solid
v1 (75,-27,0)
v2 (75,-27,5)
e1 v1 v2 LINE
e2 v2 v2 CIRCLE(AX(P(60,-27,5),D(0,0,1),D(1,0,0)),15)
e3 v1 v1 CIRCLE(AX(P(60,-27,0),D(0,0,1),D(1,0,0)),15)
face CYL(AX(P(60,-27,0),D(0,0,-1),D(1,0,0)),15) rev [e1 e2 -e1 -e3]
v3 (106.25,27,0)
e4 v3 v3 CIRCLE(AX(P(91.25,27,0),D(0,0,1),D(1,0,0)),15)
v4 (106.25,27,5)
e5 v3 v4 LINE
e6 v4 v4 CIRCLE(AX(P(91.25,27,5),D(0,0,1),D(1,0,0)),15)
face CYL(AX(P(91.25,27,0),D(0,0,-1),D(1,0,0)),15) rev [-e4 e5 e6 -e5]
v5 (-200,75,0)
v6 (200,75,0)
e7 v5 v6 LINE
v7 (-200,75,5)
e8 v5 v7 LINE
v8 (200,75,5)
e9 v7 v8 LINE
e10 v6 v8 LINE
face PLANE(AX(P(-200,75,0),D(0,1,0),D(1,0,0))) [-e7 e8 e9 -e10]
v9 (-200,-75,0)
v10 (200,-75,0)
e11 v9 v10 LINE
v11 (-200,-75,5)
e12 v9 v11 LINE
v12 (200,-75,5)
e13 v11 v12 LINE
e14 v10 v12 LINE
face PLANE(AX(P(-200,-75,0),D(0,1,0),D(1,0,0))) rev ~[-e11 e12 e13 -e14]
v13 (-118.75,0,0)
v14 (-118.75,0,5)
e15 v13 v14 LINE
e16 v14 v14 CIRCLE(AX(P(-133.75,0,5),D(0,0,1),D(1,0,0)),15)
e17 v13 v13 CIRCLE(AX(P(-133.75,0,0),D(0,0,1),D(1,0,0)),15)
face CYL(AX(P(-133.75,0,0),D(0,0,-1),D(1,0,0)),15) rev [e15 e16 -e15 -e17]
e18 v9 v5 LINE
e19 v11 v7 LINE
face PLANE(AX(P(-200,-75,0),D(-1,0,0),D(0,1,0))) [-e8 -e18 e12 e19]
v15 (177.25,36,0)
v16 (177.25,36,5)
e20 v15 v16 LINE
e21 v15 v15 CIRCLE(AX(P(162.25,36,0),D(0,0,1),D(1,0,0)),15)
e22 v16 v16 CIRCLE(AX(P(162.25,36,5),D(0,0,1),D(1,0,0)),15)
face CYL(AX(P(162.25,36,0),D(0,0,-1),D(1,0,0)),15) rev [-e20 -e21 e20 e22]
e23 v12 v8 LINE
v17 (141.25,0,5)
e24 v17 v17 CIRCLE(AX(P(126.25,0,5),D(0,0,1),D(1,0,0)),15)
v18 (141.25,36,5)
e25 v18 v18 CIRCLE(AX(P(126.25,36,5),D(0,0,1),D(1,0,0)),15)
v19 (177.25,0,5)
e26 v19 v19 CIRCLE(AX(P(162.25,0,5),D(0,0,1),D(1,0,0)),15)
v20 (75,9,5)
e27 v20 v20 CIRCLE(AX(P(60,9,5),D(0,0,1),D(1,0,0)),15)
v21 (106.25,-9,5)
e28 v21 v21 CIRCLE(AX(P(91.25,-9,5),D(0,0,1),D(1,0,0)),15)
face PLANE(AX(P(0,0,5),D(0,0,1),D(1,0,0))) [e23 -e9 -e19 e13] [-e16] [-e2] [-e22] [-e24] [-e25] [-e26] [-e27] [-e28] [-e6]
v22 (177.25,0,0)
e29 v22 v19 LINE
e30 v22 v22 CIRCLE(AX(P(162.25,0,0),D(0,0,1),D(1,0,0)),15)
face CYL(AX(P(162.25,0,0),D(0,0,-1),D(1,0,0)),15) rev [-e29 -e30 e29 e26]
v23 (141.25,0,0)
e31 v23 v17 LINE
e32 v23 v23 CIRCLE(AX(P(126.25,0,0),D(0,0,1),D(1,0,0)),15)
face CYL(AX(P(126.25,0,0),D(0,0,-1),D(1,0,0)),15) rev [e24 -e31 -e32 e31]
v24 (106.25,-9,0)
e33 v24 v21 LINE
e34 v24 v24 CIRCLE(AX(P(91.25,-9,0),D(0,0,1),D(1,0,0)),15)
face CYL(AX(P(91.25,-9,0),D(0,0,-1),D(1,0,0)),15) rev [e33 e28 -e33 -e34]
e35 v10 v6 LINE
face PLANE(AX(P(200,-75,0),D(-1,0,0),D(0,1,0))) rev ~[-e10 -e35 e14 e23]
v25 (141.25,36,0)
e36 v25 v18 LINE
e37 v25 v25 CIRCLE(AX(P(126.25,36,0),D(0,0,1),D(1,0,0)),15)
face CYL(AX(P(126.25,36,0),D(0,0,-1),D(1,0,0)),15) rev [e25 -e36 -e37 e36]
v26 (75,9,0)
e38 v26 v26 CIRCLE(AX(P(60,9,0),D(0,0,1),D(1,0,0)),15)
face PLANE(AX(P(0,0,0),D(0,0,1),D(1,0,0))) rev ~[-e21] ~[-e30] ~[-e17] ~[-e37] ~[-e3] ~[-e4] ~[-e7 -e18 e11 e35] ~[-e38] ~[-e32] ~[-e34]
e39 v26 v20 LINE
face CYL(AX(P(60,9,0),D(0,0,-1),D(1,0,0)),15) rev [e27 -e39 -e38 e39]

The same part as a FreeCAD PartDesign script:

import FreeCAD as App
import Part
import Sketcher
from FreeCAD import Vector
Q = App.Units.Quantity


def add_polygon(sketch, points):
    """Adds a closed chain of lines whose ends are joined by coincident constraints."""
    first, n = sketch.GeometryCount, len(points)
    for a, b in zip(points, points[1:] + points[:1]):
        sketch.addGeometry(Part.LineSegment(App.Vector(*a, 0), App.Vector(*b, 0)), False)
    for i in range(n):
        sketch.addConstraint(Sketcher.Constraint("Coincident", first + i, 2, first + (i + 1) % n, 1))

doc = App.newDocument("Part")
body = doc.addObject("PartDesign::Body", "Body")

sketch1 = doc.addObject("Sketcher::SketchObject", "Sketch")
body.addObject(sketch1)
sketch1.AttachmentSupport = (doc.XY_Plane, [""])
sketch1.MapMode = "FlatFace"
add_polygon(sketch1, [(-200, 75), (-200, -75), (200, -75), (200, 75)])
sketch1.addGeometry(Part.Circle(Vector(-134, 0, 0), Vector(0, 0, 1), 15), False)
sketch1.addGeometry(Part.Circle(Vector(60, -27, 0), Vector(0, 0, 1), 15), False)
sketch1.addGeometry(Part.Circle(Vector(91, -9, 0), Vector(0, 0, 1), 15), False)
sketch1.addGeometry(Part.Circle(Vector(126, 0, 0), Vector(0, 0, 1), 15), False)
sketch1.addGeometry(Part.Circle(Vector(162, 0, 0), Vector(0, 0, 1), 15), False)
sketch1.addGeometry(Part.Circle(Vector(60, 9, 0), Vector(0, 0, 1), 15), False)
sketch1.addGeometry(Part.Circle(Vector(91, 27, 0), Vector(0, 0, 1), 15), False)
sketch1.addGeometry(Part.Circle(Vector(126, 36, 0), Vector(0, 0, 1), 15), False)
sketch1.addGeometry(Part.Circle(Vector(162, 36, 0), Vector(0, 0, 1), 15), False)
sketch1.addConstraint(Sketcher.Constraint("Vertical", 0))
sketch1.addConstraint(Sketcher.Constraint("Horizontal", 1))
sketch1.addConstraint(Sketcher.Constraint("Vertical", 2))
sketch1.addConstraint(Sketcher.Constraint("Horizontal", 3))
sketch1.addConstraint(Sketcher.Constraint("Equal", 4, 5))
sketch1.addConstraint(Sketcher.Constraint("Equal", 5, 6))
sketch1.addConstraint(Sketcher.Constraint("Equal", 6, 7))
sketch1.addConstraint(Sketcher.Constraint("Equal", 7, 8))
sketch1.addConstraint(Sketcher.Constraint("Equal", 8, 9))
sketch1.addConstraint(Sketcher.Constraint("Equal", 9, 10))
sketch1.addConstraint(Sketcher.Constraint("Equal", 10, 11))
sketch1.addConstraint(Sketcher.Constraint("Equal", 11, 12))
sketch1.addConstraint(Sketcher.Constraint("Symmetric", 0, 2, 2, 2, -1, 1))
sketch1.addConstraint(Sketcher.Constraint("PointOnObject", 4, 3, -1))
sketch1.addConstraint(Sketcher.Constraint("PointOnObject", 7, 3, -1))
sketch1.addConstraint(Sketcher.Constraint("PointOnObject", 8, 3, -1))
sketch1.addConstraint(Sketcher.Constraint("Horizontal", 11, 3, 12, 3))
sketch1.addConstraint(Sketcher.Constraint("Vertical", 5, 3, 9, 3))
sketch1.addConstraint(Sketcher.Constraint("Vertical", 6, 3, 10, 3))
sketch1.addConstraint(Sketcher.Constraint("Vertical", 7, 3, 11, 3))
sketch1.addConstraint(Sketcher.Constraint("Vertical", 8, 3, 12, 3))
sketch1.addConstraint(Sketcher.Constraint("Diameter", 4, Q("30 mm")))
sketch1.addConstraint(Sketcher.Constraint("DistanceX", 1, 1, 1, 2, Q("400 mm")))
sketch1.addConstraint(Sketcher.Constraint("DistanceY", 0, 2, 0, 1, Q("150 mm")))
sketch1.addConstraint(Sketcher.Constraint("DistanceX", -1, 1, 5, 3, Q("60 mm")))
sketch1.addConstraint(Sketcher.Constraint("DistanceY", 5, 3, -1, 1, Q("27 mm")))
sketch1.addConstraint(Sketcher.Constraint("DistanceY", 6, 3, -1, 1, Q("9 mm")))
sketch1.addConstraint(Sketcher.Constraint("DistanceY", -1, 1, 9, 3, Q("9 mm")))
sketch1.addConstraint(Sketcher.Constraint("DistanceY", -1, 1, 10, 3, Q("27 mm")))
sketch1.addConstraint(Sketcher.Constraint("DistanceY", -1, 1, 11, 3, Q("36 mm")))
sketch1.addConstraint(Sketcher.Constraint("DistanceX", 4, 3, 6, 3, Q("225 mm")))
sketch1.addConstraint(Sketcher.Constraint("DistanceX", 6, 3, 7, 3, Q("35 mm")))
sketch1.addConstraint(Sketcher.Constraint("DistanceX", 7, 3, 8, 3, Q("36 mm")))
sketch1.addConstraint(Sketcher.Constraint("DistanceX", 4, 3, -1, 1, Q("133.75 mm")))
pad1 = doc.addObject("PartDesign::Pad", "Pad")
body.addObject(pad1)
pad1.Profile = sketch1
pad1.Length = 5

doc.recompute()
